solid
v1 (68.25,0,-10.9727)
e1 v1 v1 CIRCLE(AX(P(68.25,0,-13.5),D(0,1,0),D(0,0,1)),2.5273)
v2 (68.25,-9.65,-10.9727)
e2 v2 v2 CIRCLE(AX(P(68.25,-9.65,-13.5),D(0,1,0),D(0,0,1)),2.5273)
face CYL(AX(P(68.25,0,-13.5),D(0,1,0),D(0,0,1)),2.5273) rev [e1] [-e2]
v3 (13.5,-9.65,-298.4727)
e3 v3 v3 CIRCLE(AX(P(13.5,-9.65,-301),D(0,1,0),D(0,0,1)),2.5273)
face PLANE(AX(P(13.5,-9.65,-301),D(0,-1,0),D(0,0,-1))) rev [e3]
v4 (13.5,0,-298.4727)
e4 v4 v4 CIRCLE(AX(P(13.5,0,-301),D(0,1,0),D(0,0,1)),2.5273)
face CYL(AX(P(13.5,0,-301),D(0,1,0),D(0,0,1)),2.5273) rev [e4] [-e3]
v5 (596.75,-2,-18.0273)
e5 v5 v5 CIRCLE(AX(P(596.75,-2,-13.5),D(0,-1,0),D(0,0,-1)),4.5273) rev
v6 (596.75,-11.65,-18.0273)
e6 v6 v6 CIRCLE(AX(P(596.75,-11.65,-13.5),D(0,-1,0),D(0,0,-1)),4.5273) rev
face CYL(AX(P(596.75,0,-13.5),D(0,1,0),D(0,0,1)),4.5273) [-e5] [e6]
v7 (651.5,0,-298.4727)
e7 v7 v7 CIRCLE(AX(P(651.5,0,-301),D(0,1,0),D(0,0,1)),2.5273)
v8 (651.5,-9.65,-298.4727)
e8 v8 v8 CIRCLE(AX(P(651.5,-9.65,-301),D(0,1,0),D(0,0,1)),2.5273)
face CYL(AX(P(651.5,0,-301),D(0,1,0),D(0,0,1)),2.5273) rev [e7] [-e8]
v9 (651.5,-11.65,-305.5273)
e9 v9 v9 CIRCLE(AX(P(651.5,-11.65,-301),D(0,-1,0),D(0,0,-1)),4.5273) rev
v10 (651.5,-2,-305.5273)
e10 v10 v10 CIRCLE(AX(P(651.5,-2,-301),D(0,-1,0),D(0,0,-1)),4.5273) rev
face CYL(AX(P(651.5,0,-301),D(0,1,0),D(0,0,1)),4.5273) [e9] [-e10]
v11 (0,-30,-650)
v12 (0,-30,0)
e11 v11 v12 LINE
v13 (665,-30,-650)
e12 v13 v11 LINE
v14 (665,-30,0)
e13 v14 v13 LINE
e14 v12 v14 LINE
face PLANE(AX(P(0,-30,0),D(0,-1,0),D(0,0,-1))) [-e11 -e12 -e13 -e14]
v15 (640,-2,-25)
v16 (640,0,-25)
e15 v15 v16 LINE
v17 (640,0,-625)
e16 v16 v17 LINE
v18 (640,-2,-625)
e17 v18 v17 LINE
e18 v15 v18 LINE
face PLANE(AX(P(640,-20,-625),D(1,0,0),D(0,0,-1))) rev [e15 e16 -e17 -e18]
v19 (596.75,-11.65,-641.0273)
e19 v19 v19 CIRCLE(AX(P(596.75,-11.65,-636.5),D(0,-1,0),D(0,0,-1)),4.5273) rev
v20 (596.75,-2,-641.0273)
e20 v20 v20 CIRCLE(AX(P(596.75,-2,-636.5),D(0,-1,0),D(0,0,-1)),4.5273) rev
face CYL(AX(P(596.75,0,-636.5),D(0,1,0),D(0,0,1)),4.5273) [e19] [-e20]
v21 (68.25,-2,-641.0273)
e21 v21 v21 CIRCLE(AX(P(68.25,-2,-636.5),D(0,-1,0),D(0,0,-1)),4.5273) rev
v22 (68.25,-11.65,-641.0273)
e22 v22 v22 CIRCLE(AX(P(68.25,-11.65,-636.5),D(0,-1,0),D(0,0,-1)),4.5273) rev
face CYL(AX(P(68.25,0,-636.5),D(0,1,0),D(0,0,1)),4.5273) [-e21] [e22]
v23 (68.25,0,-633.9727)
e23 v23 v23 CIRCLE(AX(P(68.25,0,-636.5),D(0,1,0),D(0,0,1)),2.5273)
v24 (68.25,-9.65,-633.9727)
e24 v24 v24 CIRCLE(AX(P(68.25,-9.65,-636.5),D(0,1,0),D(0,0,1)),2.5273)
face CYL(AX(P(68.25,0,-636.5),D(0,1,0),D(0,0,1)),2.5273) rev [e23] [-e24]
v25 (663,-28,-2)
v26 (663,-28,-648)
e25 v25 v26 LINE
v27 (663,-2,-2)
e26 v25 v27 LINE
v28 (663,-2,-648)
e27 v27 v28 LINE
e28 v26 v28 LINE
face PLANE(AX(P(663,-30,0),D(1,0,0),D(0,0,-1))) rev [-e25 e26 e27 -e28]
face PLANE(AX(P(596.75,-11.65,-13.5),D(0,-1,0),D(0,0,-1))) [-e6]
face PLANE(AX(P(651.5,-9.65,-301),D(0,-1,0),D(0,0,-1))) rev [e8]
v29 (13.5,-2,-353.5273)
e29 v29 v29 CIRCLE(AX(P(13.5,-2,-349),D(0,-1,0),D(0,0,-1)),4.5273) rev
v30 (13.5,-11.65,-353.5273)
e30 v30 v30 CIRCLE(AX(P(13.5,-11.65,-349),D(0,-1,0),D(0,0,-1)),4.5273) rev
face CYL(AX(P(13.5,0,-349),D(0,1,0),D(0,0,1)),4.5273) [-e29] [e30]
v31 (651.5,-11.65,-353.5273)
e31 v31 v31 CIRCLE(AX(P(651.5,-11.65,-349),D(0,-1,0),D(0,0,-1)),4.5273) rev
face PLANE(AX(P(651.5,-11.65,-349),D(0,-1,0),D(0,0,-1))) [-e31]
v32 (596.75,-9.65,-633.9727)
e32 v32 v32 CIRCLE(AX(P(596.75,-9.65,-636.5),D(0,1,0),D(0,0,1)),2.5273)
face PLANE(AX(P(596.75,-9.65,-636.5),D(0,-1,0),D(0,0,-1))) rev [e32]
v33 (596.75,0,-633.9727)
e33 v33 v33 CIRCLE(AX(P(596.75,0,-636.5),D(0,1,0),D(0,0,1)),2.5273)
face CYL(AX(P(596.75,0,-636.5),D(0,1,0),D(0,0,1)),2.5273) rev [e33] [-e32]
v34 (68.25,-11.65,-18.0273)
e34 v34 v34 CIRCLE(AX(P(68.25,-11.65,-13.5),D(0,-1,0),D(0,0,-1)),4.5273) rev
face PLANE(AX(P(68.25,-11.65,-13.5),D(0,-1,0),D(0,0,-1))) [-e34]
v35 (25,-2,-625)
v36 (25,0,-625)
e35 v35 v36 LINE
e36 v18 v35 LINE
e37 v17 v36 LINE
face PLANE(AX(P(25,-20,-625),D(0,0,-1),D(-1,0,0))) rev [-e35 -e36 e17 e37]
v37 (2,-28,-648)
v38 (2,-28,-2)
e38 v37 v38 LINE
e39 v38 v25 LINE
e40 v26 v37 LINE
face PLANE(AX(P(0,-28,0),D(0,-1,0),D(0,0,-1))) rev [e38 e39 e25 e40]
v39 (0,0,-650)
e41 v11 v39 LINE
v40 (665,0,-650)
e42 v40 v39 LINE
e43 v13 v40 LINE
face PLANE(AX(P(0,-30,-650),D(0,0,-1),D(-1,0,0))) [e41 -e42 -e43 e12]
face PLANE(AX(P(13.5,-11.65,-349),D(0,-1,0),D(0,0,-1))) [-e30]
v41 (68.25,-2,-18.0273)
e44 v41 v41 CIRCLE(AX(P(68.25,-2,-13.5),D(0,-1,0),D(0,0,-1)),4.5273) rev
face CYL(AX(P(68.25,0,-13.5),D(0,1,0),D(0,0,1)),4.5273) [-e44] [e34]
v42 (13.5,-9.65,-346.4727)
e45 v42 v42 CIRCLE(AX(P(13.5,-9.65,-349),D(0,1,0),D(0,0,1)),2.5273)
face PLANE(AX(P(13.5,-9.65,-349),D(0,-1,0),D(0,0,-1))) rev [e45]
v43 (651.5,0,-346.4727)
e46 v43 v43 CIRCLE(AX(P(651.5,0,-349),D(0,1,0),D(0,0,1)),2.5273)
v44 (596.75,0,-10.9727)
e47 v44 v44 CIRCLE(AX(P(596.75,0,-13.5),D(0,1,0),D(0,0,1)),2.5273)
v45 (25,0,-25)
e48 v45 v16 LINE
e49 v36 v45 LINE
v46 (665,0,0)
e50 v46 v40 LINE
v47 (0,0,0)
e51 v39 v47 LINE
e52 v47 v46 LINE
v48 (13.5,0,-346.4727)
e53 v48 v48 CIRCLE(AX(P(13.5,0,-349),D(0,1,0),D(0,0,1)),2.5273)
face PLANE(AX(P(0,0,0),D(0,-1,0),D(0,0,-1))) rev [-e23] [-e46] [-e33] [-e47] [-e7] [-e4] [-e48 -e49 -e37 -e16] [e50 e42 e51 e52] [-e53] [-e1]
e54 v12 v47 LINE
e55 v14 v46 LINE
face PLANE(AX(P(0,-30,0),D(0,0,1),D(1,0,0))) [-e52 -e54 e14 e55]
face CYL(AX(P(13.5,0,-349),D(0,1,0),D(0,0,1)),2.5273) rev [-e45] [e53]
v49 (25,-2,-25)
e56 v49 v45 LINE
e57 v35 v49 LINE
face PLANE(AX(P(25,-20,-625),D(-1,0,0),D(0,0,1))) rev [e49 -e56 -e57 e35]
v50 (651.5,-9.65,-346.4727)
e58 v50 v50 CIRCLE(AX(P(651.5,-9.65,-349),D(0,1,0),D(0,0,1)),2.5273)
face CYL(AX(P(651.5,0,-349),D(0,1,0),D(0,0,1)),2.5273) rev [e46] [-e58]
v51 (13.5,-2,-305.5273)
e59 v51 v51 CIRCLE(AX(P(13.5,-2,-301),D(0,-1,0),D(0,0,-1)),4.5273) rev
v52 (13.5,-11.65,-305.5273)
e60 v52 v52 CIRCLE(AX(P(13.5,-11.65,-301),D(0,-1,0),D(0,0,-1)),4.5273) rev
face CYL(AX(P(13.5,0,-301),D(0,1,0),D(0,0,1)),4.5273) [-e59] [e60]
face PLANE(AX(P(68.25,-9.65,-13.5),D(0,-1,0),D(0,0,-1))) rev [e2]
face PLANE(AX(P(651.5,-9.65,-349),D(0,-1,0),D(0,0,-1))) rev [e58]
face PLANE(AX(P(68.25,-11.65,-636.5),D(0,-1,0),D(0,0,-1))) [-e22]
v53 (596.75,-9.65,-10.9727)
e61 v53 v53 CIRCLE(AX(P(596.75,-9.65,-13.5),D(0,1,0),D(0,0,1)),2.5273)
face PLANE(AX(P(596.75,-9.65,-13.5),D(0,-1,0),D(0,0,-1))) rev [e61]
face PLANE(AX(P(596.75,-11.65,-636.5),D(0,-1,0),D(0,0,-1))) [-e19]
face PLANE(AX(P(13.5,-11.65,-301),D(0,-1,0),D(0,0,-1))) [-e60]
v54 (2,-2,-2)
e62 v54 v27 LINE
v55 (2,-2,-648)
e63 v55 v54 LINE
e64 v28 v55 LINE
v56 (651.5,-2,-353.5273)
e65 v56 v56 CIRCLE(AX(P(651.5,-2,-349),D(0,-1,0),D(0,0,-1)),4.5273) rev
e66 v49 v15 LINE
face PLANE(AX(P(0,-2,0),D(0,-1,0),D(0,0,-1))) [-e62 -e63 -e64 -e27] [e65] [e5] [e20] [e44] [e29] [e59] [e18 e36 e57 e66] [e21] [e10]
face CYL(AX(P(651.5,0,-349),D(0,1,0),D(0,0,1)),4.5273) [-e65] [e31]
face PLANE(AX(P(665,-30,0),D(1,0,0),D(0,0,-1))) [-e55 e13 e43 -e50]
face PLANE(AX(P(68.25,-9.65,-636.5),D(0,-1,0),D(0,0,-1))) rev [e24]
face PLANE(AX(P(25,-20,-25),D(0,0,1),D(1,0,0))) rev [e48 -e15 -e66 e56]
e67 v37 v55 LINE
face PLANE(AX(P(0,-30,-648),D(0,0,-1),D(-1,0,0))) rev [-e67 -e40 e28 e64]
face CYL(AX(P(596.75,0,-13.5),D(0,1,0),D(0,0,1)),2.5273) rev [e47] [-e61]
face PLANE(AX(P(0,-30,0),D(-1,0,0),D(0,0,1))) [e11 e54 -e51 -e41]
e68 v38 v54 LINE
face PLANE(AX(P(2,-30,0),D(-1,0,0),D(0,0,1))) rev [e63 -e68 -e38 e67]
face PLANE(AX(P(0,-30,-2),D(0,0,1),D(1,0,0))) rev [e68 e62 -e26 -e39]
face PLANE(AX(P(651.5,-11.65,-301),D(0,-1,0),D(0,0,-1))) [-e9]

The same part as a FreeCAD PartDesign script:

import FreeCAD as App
import Part
import Sketcher


def faces_at(feature, points):
    """Names of the faces that lie closest to the given points."""
    faces = feature.Shape.Faces
    near = lambda p: min(range(len(faces)), key=lambda i: faces[i].distToShape(Part.Vertex(*p))[0])
    return sorted({f"Face{near(p) + 1}" for p in points})


def add_polygon(sketch, points):
    """Adds a closed chain of lines whose ends are joined by coincident constraints."""
    first, n = sketch.GeometryCount, len(points)
    for a, b in zip(points, points[1:] + points[:1]):
        sketch.addGeometry(Part.LineSegment(App.Vector(*a, 0), App.Vector(*b, 0)), False)
    for i in range(n):
        sketch.addConstraint(Sketcher.Constraint("Coincident", first + i, 2, first + (i + 1) % n, 1))

doc = App.newDocument("Part")
body = doc.addObject("PartDesign::Body", "Body")

# Sketch on XZ plane
sketch1 = doc.addObject("Sketcher::SketchObject", "Sketch")
body.addObject(sketch1)
sketch1.AttachmentSupport = (doc.XZ_Plane, [""])
sketch1.MapMode = "FlatFace"
add_polygon(sketch1, [(0, -650), (0, 0), (665, 0), (665, -650)])  # lines 0-3
sketch1.addConstraint(Sketcher.Constraint("Vertical", 0))
sketch1.addConstraint(Sketcher.Constraint("Horizontal", 1))
sketch1.addConstraint(Sketcher.Constraint("Vertical", 2))
sketch1.addConstraint(Sketcher.Constraint("Horizontal", 3))
sketch1.addConstraint(Sketcher.Constraint("Coincident", 0, 2, -1, 1))
sketch1.addConstraint(Sketcher.Constraint("DistanceX", 1, 1, 1, 2, 665.0))
sketch1.addConstraint(Sketcher.Constraint("DistanceY", 0, 1, 0, 2, 650.0))
pad1 = doc.addObject("PartDesign::Pad", "Pad")
body.addObject(pad1)
pad1.Profile = sketch1
pad1.Length = 30

# Sketch on XZ plane
sketch2 = doc.addObject("Sketcher::SketchObject", "Sketch001")
body.addObject(sketch2)
sketch2.AttachmentSupport = (doc.XZ_Plane, [""])
sketch2.MapMode = "FlatFace"
sketch2.addGeometry(Part.Circle(App.Vector(68.2, -13.5, 0), App.Vector(0, 0, 1), 2.5), False)
sketch2.addGeometry(Part.Circle(App.Vector(13.5, -301, 0), App.Vector(0, 0, 1), 2.5), False)
sketch2.addGeometry(Part.Circle(App.Vector(596.8, -13.5, 0), App.Vector(0, 0, 1), 2.5), False)
sketch2.addGeometry(Part.Circle(App.Vector(651.5, -301, 0), App.Vector(0, 0, 1), 2.5), False)
sketch2.addGeometry(Part.Circle(App.Vector(651.5, -349, 0), App.Vector(0, 0, 1), 2.5), False)
sketch2.addGeometry(Part.Circle(App.Vector(596.8, -636.5, 0), App.Vector(0, 0, 1), 2.5), False)
sketch2.addGeometry(Part.Circle(App.Vector(68.2, -636.5, 0), App.Vector(0, 0, 1), 2.5), False)
sketch2.addGeometry(Part.Circle(App.Vector(13.5, -349, 0), App.Vector(0, 0, 1), 2.5), False)
sketch2.addConstraint(Sketcher.Constraint("Equal", 0, 1))
sketch2.addConstraint(Sketcher.Constraint("Equal", 1, 2))
sketch2.addConstraint(Sketcher.Constraint("Equal", 2, 3))
sketch2.addConstraint(Sketcher.Constraint("Equal", 3, 4))
sketch2.addConstraint(Sketcher.Constraint("Equal", 4, 5))
sketch2.addConstraint(Sketcher.Constraint("Equal", 5, 6))
sketch2.addConstraint(Sketcher.Constraint("Equal", 6, 7))
sketch2.addConstraint(Sketcher.Constraint("Horizontal", 0, 3, 2, 3))
sketch2.addConstraint(Sketcher.Constraint("Horizontal", 1, 3, 3, 3))
sketch2.addConstraint(Sketcher.Constraint("Horizontal", 5, 3, 6, 3))
sketch2.addConstraint(Sketcher.Constraint("Horizontal", 4, 3, 7, 3))
sketch2.addConstraint(Sketcher.Constraint("Vertical", 3, 3, 4, 3))
sketch2.addConstraint(Sketcher.Constraint("Vertical", 2, 3, 5, 3))
sketch2.addConstraint(Sketcher.Constraint("Vertical", 0, 3, 6, 3))
sketch2.addConstraint(Sketcher.Constraint("Vertical", 1, 3, 7, 3))
sketch2.addConstraint(Sketcher.Constraint("DistanceY", 1, 3, -1, 1, 301.0))
sketch2.addConstraint(Sketcher.Constraint("DistanceY", 4, 3, -1, 1, 349.0))
sketch2.addConstraint(Sketcher.Constraint("DistanceX", 1, 3, 3, 3, 638.0))
sketch2.addConstraint(Sketcher.Constraint("DistanceY", 5, 3, 2, 3, 623.0))
sketch2.addConstraint(Sketcher.Constraint("Diameter", 0, 5.0546))
sketch2.addConstraint(Sketcher.Constraint("DistanceY", 0, 3, -1, 1, 13.5))
sketch2.addConstraint(Sketcher.Constraint("DistanceX", -1, 1, 1, 3, 13.5))
sketch2.addConstraint(Sketcher.Constraint("DistanceX", 0, 3, 2, 3, 528.5))
sketch2.addConstraint(Sketcher.Constraint("DistanceX", -1, 1, 0, 3, 68.25))
doc.recompute()
hole = doc.addObject("PartDesign::Hole", "Hole")
body.addObject(hole)
hole.Profile = sketch2
hole.ThreadType = "None"
hole.Diameter = 5.0546
hole.DepthType = "Dimension"
hole.Depth = 9.65
hole.DrillPoint = "Flat"
hole.Reversed = True

# Sketch on XZ plane
sketch3 = doc.addObject("Sketcher::SketchObject", "Sketch002")
body.addObject(sketch3)
sketch3.AttachmentSupport = (doc.XZ_Plane, [""])
sketch3.MapMode = "FlatFace"
add_polygon(sketch3, [(25, -625), (25, -25), (640, -25), (640, -625)])  # lines 0-3
sketch3.addConstraint(Sketcher.Constraint("Vertical", 0))
sketch3.addConstraint(Sketcher.Constraint("Horizontal", 1))
sketch3.addConstraint(Sketcher.Constraint("Vertical", 2))
sketch3.addConstraint(Sketcher.Constraint("Horizontal", 3))
sketch3.addConstraint(Sketcher.Constraint("DistanceX", 1, 1, 1, 2, 615.0))
sketch3.addConstraint(Sketcher.Constraint("DistanceY", 0, 1, 0, 2, 600.0))
sketch3.addConstraint(Sketcher.Constraint("DistanceX", -1, 1, 0, 2, 25.0))
sketch3.addConstraint(Sketcher.Constraint("DistanceY", 0, 2, -1, 1, 25.0))
pocket1 = doc.addObject("PartDesign::Pocket", "Pocket")
body.addObject(pocket1)
pocket1.Profile = sketch3
pocket1.Length = 20
pocket1.Reversed = True
doc.recompute()

thickness = doc.addObject("PartDesign::Thickness", "Thickness")
body.addObject(thickness)
thickness.Base = (pocket1, faces_at(pocket1, [
    (25, -10, -325),
    (332.5, -10, -25),
    (640, -10, -325),
    (332.5, -10, -625),
    (332.5, -20, -325),
]))
thickness.Value = 2
thickness.Reversed = True
thickness.Join = "Intersection"

doc.recompute()
